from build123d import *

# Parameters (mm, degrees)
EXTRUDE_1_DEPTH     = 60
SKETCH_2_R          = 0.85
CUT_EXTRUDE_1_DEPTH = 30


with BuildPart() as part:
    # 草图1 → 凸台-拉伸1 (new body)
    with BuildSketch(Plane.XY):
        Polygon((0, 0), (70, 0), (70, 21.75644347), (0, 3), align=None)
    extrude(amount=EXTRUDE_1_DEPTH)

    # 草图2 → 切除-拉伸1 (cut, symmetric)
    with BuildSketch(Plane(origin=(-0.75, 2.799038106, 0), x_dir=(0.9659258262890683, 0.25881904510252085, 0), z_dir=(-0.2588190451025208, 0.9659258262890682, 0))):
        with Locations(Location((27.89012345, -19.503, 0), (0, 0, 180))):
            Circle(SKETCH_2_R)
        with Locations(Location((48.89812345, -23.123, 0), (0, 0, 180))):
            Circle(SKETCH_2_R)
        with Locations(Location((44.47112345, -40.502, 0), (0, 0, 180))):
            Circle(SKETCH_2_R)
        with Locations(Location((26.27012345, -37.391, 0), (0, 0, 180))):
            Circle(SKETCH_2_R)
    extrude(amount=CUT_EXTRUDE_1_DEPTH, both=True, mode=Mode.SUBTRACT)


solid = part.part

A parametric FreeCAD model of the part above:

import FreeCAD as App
import Part
import Sketcher

V = App.Vector
Q = App.Units.Quantity

doc = App.newDocument("Part")
body = doc.addObject("PartDesign::Body", "Body")

# Sketch on XY plane
sketch1 = doc.addObject("Sketcher::SketchObject", "Sketch")
body.addObject(sketch1)
sketch1.AttachmentSupport = (doc.XY_Plane, [""])
sketch1.MapMode = "FlatFace"
sketch1.addGeometry([
    Part.LineSegment(V(0, 0, 0), V(70, 0, 0)),
    Part.LineSegment(V(70, 0, 0), V(70, 21.8, 0)),
    Part.LineSegment(V(70, 21.8, 0), V(0, 3, 0)),
    Part.LineSegment(V(0, 3, 0), V(0, 0, 0)),
], False)
sketch1.addConstraint([
    Sketcher.Constraint("Coincident", 0, 2, 1, 1),
    Sketcher.Constraint("Coincident", 1, 2, 2, 1),
    Sketcher.Constraint("Coincident", 2, 2, 3, 1),
    Sketcher.Constraint("Coincident", 3, 2, 0, 1),
    Sketcher.Constraint("Horizontal", 0),
    Sketcher.Constraint("Vertical", 1),
    Sketcher.Constraint("Vertical", 3),
    Sketcher.Constraint("Coincident", 3, 2, -1, 1),
    Sketcher.Constraint("DistanceX", 0, 1, 0, 2, 70.0),
    Sketcher.Constraint("DistanceY", 3, 2, 3, 1, 3.0),
    Sketcher.Constraint("Angle", 2, Q("-165 deg")),
])
pad1 = doc.addObject("PartDesign::Pad", "Pad")
body.addObject(pad1)
pad1.Profile = sketch1
pad1.Length = 60

# Sketch on an angled plane
sketch2 = doc.addObject("Sketcher::SketchObject", "Sketch001")
body.addObject(sketch2)
sketch2.Placement = App.Placement(V(-0.75, 2.799038, 0), App.Rotation(V(0.965925826, 0.258819045, 0), V(0, 0, -0.999999999), V(-0.258819045, 0.965925826, 0), "ZXY"))
sketch2.addGeometry([
    Part.Circle(V(27.9, -19.5, 0), V(0, 0, 1), 0.8),
    Part.Circle(V(48.9, -23.1, 0), V(0, 0, 1), 0.8),
    Part.Circle(V(44.5, -40.5, 0), V(0, 0, 1), 0.8),
    Part.Circle(V(26.3, -37.4, 0), V(0, 0, 1), 0.8),
], False)
sketch2.addConstraint([
    Sketcher.Constraint("Equal", 0, 1),
    Sketcher.Constraint("Equal", 1, 2),
    Sketcher.Constraint("Equal", 2, 3),
    Sketcher.Constraint("Diameter", 0, 1.7),
    Sketcher.Constraint("DistanceY", 1, 3, 0, 3, 3.62),
    Sketcher.Constraint("DistanceX", 3, 3, 0, 3, 1.62),
    Sketcher.Constraint("DistanceY", 0, 3, -1, 1, 19.503),
    Sketcher.Constraint("DistanceY", 2, 3, -1, 1, 40.502),
    Sketcher.Constraint("DistanceY", 3, 3, -1, 1, 37.391),
    Sketcher.Constraint("DistanceX", 0, 3, 1, 3, 21.008),
    Sketcher.Constraint("DistanceX", 2, 3, 1, 3, 4.427),
    Sketcher.Constraint("DistanceX", -1, 1, 0, 3, 27.890123),
])
pocket1 = doc.addObject("PartDesign::Pocket", "Pocket")
body.addObject(pocket1)
pocket1.Profile = sketch2
pocket1.Length = 60
pocket1.Midplane = True

doc.recompute()
